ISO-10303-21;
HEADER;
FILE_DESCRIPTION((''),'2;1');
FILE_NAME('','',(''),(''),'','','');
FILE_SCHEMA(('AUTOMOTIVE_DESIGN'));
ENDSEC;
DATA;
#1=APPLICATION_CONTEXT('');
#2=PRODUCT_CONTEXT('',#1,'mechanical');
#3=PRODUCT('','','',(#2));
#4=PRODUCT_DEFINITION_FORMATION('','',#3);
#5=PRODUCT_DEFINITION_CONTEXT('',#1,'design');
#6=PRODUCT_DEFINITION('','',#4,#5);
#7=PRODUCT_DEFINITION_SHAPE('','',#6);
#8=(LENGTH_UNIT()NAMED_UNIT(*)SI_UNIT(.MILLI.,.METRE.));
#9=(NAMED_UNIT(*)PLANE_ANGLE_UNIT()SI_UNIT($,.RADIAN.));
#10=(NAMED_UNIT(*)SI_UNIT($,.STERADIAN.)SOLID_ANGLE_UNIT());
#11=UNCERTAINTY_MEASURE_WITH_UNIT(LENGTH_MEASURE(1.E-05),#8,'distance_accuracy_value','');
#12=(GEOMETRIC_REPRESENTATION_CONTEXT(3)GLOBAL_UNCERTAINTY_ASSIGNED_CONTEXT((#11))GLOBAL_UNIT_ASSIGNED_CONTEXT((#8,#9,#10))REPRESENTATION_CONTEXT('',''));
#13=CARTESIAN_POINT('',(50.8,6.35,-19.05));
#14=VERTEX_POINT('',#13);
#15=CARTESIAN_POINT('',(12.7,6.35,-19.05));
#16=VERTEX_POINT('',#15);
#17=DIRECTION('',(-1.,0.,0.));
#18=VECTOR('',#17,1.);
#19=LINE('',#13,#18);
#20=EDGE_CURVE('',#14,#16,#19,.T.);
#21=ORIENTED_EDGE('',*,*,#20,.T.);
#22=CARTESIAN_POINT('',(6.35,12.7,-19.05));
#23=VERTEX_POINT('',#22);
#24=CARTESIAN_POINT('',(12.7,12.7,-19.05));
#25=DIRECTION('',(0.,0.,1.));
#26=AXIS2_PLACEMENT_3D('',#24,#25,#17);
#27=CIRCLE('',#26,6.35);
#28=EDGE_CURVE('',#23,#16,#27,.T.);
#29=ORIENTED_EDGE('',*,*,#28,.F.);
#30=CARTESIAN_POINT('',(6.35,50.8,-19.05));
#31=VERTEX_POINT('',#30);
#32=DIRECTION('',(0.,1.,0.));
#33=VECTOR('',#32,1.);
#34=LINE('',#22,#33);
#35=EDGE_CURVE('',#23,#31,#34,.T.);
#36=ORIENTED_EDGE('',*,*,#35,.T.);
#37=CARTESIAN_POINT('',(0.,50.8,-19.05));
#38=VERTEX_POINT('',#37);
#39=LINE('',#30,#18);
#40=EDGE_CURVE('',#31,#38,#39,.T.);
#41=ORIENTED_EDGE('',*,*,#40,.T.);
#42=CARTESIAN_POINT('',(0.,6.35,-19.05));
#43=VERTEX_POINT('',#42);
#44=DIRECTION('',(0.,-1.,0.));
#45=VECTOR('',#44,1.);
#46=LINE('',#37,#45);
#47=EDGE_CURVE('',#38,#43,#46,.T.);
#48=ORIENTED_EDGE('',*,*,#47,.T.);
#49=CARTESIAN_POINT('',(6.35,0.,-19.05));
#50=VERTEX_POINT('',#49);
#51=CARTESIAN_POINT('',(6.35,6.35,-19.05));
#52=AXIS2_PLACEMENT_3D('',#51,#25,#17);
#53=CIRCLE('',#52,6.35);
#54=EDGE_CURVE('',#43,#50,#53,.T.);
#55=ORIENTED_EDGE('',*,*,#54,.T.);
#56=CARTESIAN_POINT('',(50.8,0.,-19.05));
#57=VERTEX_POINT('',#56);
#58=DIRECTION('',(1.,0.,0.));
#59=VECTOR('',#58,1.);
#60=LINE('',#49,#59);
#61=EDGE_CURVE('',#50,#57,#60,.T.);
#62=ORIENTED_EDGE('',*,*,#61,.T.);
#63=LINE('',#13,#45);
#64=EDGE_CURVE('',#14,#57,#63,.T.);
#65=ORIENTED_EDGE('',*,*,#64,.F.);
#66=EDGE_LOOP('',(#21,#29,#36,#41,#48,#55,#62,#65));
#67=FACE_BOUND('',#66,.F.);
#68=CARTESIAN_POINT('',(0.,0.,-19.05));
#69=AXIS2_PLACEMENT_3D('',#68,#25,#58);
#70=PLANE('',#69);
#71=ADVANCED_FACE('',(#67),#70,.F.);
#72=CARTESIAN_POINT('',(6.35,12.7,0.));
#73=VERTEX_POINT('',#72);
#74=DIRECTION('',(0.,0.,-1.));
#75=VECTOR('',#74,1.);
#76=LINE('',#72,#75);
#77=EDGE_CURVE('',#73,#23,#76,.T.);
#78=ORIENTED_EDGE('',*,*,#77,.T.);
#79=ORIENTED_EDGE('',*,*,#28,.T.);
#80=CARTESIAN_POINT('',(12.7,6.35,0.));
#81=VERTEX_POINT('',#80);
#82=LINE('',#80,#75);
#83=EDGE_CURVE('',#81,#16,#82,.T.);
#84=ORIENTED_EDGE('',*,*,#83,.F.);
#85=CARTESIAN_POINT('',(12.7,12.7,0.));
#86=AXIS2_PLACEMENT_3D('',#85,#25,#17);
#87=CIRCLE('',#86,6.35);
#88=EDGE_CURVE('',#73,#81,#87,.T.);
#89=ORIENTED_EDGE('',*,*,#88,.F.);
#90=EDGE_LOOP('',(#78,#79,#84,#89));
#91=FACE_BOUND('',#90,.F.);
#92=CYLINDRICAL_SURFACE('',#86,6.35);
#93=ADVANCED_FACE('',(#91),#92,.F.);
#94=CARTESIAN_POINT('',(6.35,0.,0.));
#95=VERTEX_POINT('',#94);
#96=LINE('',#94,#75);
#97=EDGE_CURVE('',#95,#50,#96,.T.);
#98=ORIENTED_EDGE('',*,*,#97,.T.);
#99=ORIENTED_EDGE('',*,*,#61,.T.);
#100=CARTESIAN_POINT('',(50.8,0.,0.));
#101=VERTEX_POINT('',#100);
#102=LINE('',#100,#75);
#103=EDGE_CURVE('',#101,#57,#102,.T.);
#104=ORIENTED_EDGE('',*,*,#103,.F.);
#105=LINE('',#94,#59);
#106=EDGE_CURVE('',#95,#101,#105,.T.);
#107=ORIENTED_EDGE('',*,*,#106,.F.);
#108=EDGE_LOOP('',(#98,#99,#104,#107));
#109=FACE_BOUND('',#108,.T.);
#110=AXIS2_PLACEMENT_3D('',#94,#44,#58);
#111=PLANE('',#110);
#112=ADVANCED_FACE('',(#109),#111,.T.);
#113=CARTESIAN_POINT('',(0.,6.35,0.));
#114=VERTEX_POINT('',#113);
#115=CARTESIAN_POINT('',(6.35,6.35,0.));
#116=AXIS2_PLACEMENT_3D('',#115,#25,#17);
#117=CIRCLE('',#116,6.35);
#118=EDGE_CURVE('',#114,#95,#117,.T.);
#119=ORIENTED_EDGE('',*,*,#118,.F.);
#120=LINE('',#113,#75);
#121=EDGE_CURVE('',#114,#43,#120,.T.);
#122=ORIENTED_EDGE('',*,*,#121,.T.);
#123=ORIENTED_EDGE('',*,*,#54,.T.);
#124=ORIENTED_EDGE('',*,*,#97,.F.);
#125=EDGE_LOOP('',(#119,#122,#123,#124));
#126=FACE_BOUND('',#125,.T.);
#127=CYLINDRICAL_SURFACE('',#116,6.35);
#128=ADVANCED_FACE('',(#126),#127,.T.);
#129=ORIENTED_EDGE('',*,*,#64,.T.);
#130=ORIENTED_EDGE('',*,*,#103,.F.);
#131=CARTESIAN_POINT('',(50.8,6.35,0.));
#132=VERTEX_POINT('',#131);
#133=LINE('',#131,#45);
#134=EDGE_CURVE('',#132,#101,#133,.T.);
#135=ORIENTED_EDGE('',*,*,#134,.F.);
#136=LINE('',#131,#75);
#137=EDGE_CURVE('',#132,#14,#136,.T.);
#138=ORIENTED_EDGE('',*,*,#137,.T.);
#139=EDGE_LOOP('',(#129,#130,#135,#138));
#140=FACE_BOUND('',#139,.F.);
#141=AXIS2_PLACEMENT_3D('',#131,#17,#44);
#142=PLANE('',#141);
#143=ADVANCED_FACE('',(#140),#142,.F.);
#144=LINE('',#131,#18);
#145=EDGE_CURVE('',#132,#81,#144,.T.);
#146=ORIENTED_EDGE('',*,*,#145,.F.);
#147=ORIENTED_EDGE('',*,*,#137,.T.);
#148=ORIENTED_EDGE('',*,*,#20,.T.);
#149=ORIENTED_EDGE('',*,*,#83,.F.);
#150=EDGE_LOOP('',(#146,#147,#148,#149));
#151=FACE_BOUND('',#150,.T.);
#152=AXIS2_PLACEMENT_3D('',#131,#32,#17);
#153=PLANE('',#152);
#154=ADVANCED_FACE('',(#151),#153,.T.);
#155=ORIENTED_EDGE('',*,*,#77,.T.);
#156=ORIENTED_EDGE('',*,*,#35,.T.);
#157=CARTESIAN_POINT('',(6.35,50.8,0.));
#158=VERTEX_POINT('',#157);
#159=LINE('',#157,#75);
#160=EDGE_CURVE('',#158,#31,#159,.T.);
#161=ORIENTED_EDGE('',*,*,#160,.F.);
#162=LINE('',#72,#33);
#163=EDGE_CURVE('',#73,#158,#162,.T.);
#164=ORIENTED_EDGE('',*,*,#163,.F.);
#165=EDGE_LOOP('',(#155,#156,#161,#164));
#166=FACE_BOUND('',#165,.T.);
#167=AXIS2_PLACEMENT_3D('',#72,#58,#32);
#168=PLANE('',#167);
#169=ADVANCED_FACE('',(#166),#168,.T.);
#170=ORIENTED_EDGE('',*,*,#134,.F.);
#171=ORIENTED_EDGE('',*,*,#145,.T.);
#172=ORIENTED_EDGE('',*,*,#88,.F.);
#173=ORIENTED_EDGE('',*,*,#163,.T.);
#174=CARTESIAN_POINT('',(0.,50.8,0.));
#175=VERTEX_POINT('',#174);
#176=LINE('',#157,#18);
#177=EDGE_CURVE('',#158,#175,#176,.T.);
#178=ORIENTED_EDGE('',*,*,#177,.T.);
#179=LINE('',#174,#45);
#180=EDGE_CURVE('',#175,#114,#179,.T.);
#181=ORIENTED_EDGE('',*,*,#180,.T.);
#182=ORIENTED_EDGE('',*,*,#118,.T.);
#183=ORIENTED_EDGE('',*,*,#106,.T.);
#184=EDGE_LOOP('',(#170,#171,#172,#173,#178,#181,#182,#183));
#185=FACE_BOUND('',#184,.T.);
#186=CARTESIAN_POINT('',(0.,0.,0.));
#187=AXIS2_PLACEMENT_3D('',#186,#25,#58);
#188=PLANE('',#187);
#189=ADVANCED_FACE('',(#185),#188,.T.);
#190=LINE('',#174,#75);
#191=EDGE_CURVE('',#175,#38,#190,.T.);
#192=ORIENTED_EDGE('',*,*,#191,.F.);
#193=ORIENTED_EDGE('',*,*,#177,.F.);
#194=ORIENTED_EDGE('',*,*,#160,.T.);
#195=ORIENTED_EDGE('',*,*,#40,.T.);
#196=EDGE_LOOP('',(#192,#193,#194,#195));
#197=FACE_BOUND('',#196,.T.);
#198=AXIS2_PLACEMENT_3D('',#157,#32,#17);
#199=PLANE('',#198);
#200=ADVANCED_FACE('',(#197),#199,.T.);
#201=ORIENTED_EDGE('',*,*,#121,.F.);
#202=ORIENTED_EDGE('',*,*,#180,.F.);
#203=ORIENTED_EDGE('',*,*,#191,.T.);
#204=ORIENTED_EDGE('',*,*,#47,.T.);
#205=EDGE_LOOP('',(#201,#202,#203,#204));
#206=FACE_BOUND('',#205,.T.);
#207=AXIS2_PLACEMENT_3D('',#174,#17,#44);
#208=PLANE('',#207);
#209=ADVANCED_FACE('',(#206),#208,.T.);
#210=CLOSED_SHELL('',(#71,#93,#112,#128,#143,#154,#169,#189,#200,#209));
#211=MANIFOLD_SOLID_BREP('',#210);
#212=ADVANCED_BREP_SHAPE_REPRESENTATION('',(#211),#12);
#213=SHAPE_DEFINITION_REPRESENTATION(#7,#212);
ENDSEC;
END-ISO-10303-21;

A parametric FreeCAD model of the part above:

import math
import FreeCAD as App
import Part
import Sketcher
from FreeCAD import Vector
Q = App.Units.Quantity

doc = App.newDocument("Part")
body = doc.addObject("PartDesign::Body", "Body")

sketch1 = doc.addObject("Sketcher::SketchObject", "Sketch")
body.addObject(sketch1)
sketch1.AttachmentSupport = (doc.XY_Plane, [""])
sketch1.MapMode = "FlatFace"
sketch1.addGeometry([
    Part.ArcOfCircle(Part.Circle(Vector(6, 6, 0), Vector(0, 0, 1), 6), math.radians(180), math.radians(270)),
    Part.LineSegment(Vector(6, 0, 0), Vector(51, 0, 0)),
    Part.LineSegment(Vector(51, 0, 0), Vector(51, 6, 0)),
    Part.LineSegment(Vector(51, 6, 0), Vector(13, 6, 0)),
    Part.ArcOfCircle(Part.Circle(Vector(13, 13, 0), Vector(0, 0, 1), 6), math.radians(180), math.radians(270)),
    Part.LineSegment(Vector(6, 13, 0), Vector(6, 51, 0)),
    Part.LineSegment(Vector(6, 51, 0), Vector(0, 51, 0)),
    Part.LineSegment(Vector(0, 51, 0), Vector(0, 6, 0)),
], False)
sketch1.addConstraint([
    Sketcher.Constraint("Tangent", 0, 2, 1, 1),
    Sketcher.Constraint("Coincident", 1, 2, 2, 1),
    Sketcher.Constraint("Coincident", 2, 2, 3, 1),
    Sketcher.Constraint("Tangent", 3, 2, 4, 2),
    Sketcher.Constraint("Tangent", 4, 1, 5, 1),
    Sketcher.Constraint("Coincident", 5, 2, 6, 1),
    Sketcher.Constraint("Coincident", 6, 2, 7, 1),
    Sketcher.Constraint("Tangent", 7, 2, 0, 1),
    Sketcher.Constraint("Horizontal", 1),
    Sketcher.Constraint("Vertical", 2),
    Sketcher.Constraint("Horizontal", 3),
    Sketcher.Constraint("Vertical", 5),
    Sketcher.Constraint("Horizontal", 6),
    Sketcher.Constraint("Vertical", 7),
    Sketcher.Constraint("Equal", 0, 4),
    Sketcher.Constraint("PointOnObject", 0, 2, -1),
    Sketcher.Constraint("PointOnObject", 6, 2, -2),
    Sketcher.Constraint("Horizontal", 0, 3, 2, 2),
    Sketcher.Constraint("Vertical", 0, 2, 4, 1),
    Sketcher.Constraint("Equal", 3, 5),
    Sketcher.Constraint("Radius", 0, Q("0.25 in")),
    Sketcher.Constraint("DistanceX", 3, 2, 3, 1, Q("1.5 in")),
])
pad1 = doc.addObject("PartDesign::Pad", "Pad")
body.addObject(pad1)
pad1.Profile = sketch1
pad1.Length = Q("0.75 in")
pad1.Reversed = True

doc.recompute()
